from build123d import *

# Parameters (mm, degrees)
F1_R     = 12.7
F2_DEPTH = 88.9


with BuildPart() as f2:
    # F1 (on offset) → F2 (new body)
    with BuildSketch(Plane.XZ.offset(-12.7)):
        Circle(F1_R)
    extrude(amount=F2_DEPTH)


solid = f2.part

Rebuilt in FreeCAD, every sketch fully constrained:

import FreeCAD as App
import Part
import Sketcher

V = App.Vector
Q = App.Units.Quantity

doc = App.newDocument("Part")
params = doc.addObject("Spreadsheet::Sheet", "Params")
for row, (alias, value) in enumerate([
    ("sketch1_diameter", "1 in"),
    ("pad1_length", "3.5 in"),
], start=1):
    params.set(f"A{row}", alias)
    params.set(f"B{row}", "=" + value)
    params.setAlias(f"B{row}", alias)

body = doc.addObject("PartDesign::Body", "Body")

sketch1 = body.newObject("Sketcher::SketchObject", "Sketch")
sketch1.AttachmentSupport = (doc.getObject("XZ_Plane"), [""])
sketch1.MapMode = "FlatFace"
sketch1.AttachmentOffset = App.Placement(V(0, 0, -0.5 * 25.4), App.Rotation())
sketch1.addGeometry(Part.Circle(V(0, 0, 0), V(0, 0, 1), 12.7), False)
sketch1.addConstraint([
    Sketcher.Constraint("Coincident", 0, 3, -1, 1),
    Sketcher.Constraint("Diameter", 0, Q("1 in")),
])
sketch1.setExpression("Constraints[1]", "Params.sketch1_diameter")
pad1 = body.newObject("PartDesign::Pad", "Pad")
pad1.Profile = sketch1
pad1.setExpression("Length", "Params.pad1_length")

doc.recompute()
